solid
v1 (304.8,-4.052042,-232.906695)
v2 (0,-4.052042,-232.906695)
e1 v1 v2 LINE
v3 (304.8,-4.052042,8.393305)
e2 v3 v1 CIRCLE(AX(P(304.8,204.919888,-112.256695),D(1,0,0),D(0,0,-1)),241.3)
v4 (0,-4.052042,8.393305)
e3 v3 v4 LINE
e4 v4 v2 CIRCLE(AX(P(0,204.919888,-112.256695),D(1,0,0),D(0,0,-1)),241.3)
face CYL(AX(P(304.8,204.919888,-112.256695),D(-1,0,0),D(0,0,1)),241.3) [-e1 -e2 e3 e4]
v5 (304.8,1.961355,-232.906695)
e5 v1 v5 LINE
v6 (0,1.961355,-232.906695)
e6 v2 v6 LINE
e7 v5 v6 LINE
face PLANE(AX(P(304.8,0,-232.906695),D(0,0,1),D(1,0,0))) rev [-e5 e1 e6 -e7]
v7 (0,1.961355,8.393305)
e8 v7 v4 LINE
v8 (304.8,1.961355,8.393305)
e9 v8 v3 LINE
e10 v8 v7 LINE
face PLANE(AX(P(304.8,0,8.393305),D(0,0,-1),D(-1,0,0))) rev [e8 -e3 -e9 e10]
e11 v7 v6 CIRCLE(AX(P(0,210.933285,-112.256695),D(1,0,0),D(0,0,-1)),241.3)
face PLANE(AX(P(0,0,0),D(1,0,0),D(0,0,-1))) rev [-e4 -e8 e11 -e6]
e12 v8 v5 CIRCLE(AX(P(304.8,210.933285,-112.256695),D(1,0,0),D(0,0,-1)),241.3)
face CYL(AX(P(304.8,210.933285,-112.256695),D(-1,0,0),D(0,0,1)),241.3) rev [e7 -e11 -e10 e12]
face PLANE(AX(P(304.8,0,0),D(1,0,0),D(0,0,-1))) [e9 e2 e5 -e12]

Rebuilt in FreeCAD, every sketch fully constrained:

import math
import FreeCAD as App
import Part
import Sketcher
Q = App.Units.Quantity

doc = App.newDocument("Part")
body = doc.addObject("PartDesign::Body", "Body")

sketch1 = body.newObject("Sketcher::SketchObject", "Sketch")
sketch1.AttachmentSupport = (doc.getObject("YZ_Plane"), [""])
sketch1.MapMode = "FlatFace"
sketch1.addGeometry(Part.ArcOfCircle(Part.Circle(App.Vector(211, -112, 0), App.Vector(0, 0, 1), 241), math.radians(150), math.radians(210)), False)
sketch1.addGeometry(Part.LineSegment(App.Vector(2, 8, 0), App.Vector(-4, 8, 0)), False)
sketch1.addGeometry(Part.ArcOfCircle(Part.Circle(App.Vector(205, -112, 0), App.Vector(0, 0, 1), 241), math.radians(150), math.radians(210)), False)
sketch1.addGeometry(Part.LineSegment(App.Vector(-4, -233, 0), App.Vector(2, -233, 0)), False)
sketch1.addConstraint(Sketcher.Constraint("Coincident", 0, 1, 1, 1))
sketch1.addConstraint(Sketcher.Constraint("Coincident", 1, 2, 2, 1))
sketch1.addConstraint(Sketcher.Constraint("Coincident", 2, 2, 3, 1))
sketch1.addConstraint(Sketcher.Constraint("Coincident", 3, 2, 0, 2))
sketch1.addConstraint(Sketcher.Constraint("Horizontal", 1))
sketch1.addConstraint(Sketcher.Constraint("Horizontal", 3))
sketch1.addConstraint(Sketcher.Constraint("Equal", 0, 2))
sketch1.addConstraint(Sketcher.Constraint("Horizontal", 0, 3, 2, 3))
sketch1.addConstraint(Sketcher.Constraint("Vertical", 1, 2, 2, 2))
sketch1.addConstraint(Sketcher.Constraint("Radius", 0, Q("9.5 in")))
sketch1.addConstraint(Sketcher.Constraint("DistanceY", 2, 2, 1, 2, Q("9.5 in")))
sketch1.addConstraint(Sketcher.Constraint("DistanceX", 1, 2, 1, 1, 6.013396))
sketch1.addConstraint(Sketcher.Constraint("DistanceX", -1, 1, 2, 3, 204.919888))
sketch1.addConstraint(Sketcher.Constraint("DistanceY", 0, 3, -1, 1, 112.256695))
pad1 = body.newObject("PartDesign::Pad", "Pad")
pad1.Profile = sketch1
pad1.Length = Q("12 in")

doc.recompute()
